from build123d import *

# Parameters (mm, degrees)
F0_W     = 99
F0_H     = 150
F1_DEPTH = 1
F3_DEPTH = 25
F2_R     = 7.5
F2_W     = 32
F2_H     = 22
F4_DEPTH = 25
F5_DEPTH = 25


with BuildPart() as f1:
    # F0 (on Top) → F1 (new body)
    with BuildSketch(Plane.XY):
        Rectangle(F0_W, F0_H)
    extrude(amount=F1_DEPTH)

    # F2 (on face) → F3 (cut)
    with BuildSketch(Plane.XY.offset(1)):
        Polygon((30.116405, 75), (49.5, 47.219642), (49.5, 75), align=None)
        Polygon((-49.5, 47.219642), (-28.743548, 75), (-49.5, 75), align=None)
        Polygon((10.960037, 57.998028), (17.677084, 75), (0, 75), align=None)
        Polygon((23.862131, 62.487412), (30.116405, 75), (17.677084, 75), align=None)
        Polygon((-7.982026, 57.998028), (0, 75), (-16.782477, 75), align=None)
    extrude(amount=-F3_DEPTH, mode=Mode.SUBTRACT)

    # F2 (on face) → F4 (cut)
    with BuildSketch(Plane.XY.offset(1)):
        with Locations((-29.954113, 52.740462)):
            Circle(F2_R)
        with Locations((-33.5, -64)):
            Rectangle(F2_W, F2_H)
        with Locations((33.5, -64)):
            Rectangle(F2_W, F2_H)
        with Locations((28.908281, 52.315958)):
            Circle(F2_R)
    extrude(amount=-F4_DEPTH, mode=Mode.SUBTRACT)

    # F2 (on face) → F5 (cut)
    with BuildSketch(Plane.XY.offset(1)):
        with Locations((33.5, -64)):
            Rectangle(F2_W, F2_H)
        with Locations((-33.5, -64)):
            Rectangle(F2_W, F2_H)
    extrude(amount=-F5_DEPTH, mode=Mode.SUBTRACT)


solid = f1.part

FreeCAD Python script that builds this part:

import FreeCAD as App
import Part
import Sketcher
from FreeCAD import Vector

doc = App.newDocument("Part")
body = doc.addObject("PartDesign::Body", "Body")

# Sketch on XY plane
sketch1 = body.newObject("Sketcher::SketchObject", "Sketch")
sketch1.AttachmentSupport = (doc.getObject("XY_Plane"), [""])
sketch1.MapMode = "FlatFace"
sketch1.addGeometry(Part.LineSegment(Vector(-50, 75, 0), Vector(-50, -75, 0)), False)
sketch1.addGeometry(Part.LineSegment(Vector(-50, -75, 0), Vector(50, -75, 0)), False)
sketch1.addGeometry(Part.LineSegment(Vector(50, -75, 0), Vector(50, 75, 0)), False)
sketch1.addGeometry(Part.LineSegment(Vector(50, 75, 0), Vector(-50, 75, 0)), False)
sketch1.addConstraint(Sketcher.Constraint("Coincident", 0, 2, 1, 1))
sketch1.addConstraint(Sketcher.Constraint("Coincident", 1, 2, 2, 1))
sketch1.addConstraint(Sketcher.Constraint("Coincident", 2, 2, 3, 1))
sketch1.addConstraint(Sketcher.Constraint("Coincident", 3, 2, 0, 1))
sketch1.addConstraint(Sketcher.Constraint("Vertical", 0))
sketch1.addConstraint(Sketcher.Constraint("Horizontal", 1))
sketch1.addConstraint(Sketcher.Constraint("Vertical", 2))
sketch1.addConstraint(Sketcher.Constraint("Horizontal", 3))
sketch1.addConstraint(Sketcher.Constraint("Symmetric", 0, 2, 2, 2, -1, 1))
sketch1.addConstraint(Sketcher.Constraint("DistanceX", 1, 1, 1, 2, 99.0))
sketch1.addConstraint(Sketcher.Constraint("DistanceY", 0, 2, 0, 1, 150.0))
pad1 = body.newObject("PartDesign::Pad", "Pad")
pad1.Profile = sketch1
pad1.Length = 1

# Sketch on XY plane
sketch2 = body.newObject("Sketcher::SketchObject", "Sketch001")
sketch2.AttachmentSupport = (doc.getObject("XY_Plane"), [""])
sketch2.MapMode = "FlatFace"
sketch2.AttachmentOffset = App.Placement(Vector(0, 0, 1), App.Rotation())
sketch2.addGeometry(Part.LineSegment(Vector(30, 75, 0), Vector(50, 47, 0)), False)
sketch2.addGeometry(Part.LineSegment(Vector(50, 47, 0), Vector(50, 75, 0)), False)
sketch2.addGeometry(Part.LineSegment(Vector(50, 75, 0), Vector(30, 75, 0)), False)
sketch2.addGeometry(Part.LineSegment(Vector(-50, 47, 0), Vector(-29, 75, 0)), False)
sketch2.addGeometry(Part.LineSegment(Vector(-29, 75, 0), Vector(-50, 75, 0)), False)
sketch2.addGeometry(Part.LineSegment(Vector(-50, 75, 0), Vector(-50, 47, 0)), False)
sketch2.addGeometry(Part.LineSegment(Vector(11, 58, 0), Vector(18, 75, 0)), False)
sketch2.addGeometry(Part.LineSegment(Vector(18, 75, 0), Vector(0, 75, 0)), False)
sketch2.addGeometry(Part.LineSegment(Vector(0, 75, 0), Vector(11, 58, 0)), False)
sketch2.addGeometry(Part.LineSegment(Vector(24, 62, 0), Vector(30, 75, 0)), False)
sketch2.addGeometry(Part.LineSegment(Vector(30, 75, 0), Vector(18, 75, 0)), False)
sketch2.addGeometry(Part.LineSegment(Vector(18, 75, 0), Vector(24, 62, 0)), False)
sketch2.addGeometry(Part.LineSegment(Vector(-8, 58, 0), Vector(0, 75, 0)), False)
sketch2.addGeometry(Part.LineSegment(Vector(0, 75, 0), Vector(-17, 75, 0)), False)
sketch2.addGeometry(Part.LineSegment(Vector(-17, 75, 0), Vector(-8, 58, 0)), False)
sketch2.addConstraint(Sketcher.Constraint("Coincident", 0, 2, 1, 1))
sketch2.addConstraint(Sketcher.Constraint("Coincident", 1, 2, 2, 1))
sketch2.addConstraint(Sketcher.Constraint("Coincident", 2, 2, 0, 1))
sketch2.addConstraint(Sketcher.Constraint("Coincident", 3, 2, 4, 1))
sketch2.addConstraint(Sketcher.Constraint("Coincident", 4, 2, 5, 1))
sketch2.addConstraint(Sketcher.Constraint("Coincident", 5, 2, 3, 1))
sketch2.addConstraint(Sketcher.Constraint("Coincident", 6, 2, 7, 1))
sketch2.addConstraint(Sketcher.Constraint("Coincident", 7, 2, 8, 1))
sketch2.addConstraint(Sketcher.Constraint("Coincident", 8, 2, 6, 1))
sketch2.addConstraint(Sketcher.Constraint("Coincident", 9, 2, 10, 1))
sketch2.addConstraint(Sketcher.Constraint("Coincident", 10, 2, 11, 1))
sketch2.addConstraint(Sketcher.Constraint("Coincident", 11, 2, 9, 1))
sketch2.addConstraint(Sketcher.Constraint("Coincident", 12, 2, 13, 1))
sketch2.addConstraint(Sketcher.Constraint("Coincident", 13, 2, 14, 1))
sketch2.addConstraint(Sketcher.Constraint("Coincident", 14, 2, 12, 1))
sketch2.addConstraint(Sketcher.Constraint("Vertical", 1))
sketch2.addConstraint(Sketcher.Constraint("Horizontal", 2))
sketch2.addConstraint(Sketcher.Constraint("Horizontal", 4))
sketch2.addConstraint(Sketcher.Constraint("Vertical", 5))
sketch2.addConstraint(Sketcher.Constraint("Horizontal", 7))
sketch2.addConstraint(Sketcher.Constraint("Horizontal", 10))
sketch2.addConstraint(Sketcher.Constraint("Horizontal", 13))
sketch2.addConstraint(Sketcher.Constraint("Coincident", 9, 2, 2, 2))
sketch2.addConstraint(Sketcher.Constraint("Coincident", 10, 2, 6, 2))
sketch2.addConstraint(Sketcher.Constraint("Coincident", 12, 2, 7, 2))
sketch2.addConstraint(Sketcher.Constraint("Symmetric", 1, 2, 4, 2, -2))
sketch2.addConstraint(Sketcher.Constraint("PointOnObject", 7, 2, -2))
sketch2.addConstraint(Sketcher.Constraint("Horizontal", 0, 2, 5, 2))
sketch2.addConstraint(Sketcher.Constraint("Horizontal", 8, 2, 14, 2))
sketch2.addConstraint(Sketcher.Constraint("DistanceY", -1, 1, 1, 2, 75.0))
sketch2.addConstraint(Sketcher.Constraint("DistanceX", 4, 2, 1, 2, 99.0))
sketch2.addConstraint(Sketcher.Constraint("DistanceX", 4, 2, 4, 1, 20.756452))
sketch2.addConstraint(Sketcher.Constraint("DistanceX", 10, 2, 10, 1, 12.439321))
sketch2.addConstraint(Sketcher.Constraint("Distance", 6, 18.280749))
sketch2.addConstraint(Sketcher.Constraint("Distance", 11, 13.957782))
sketch2.addConstraint(Sketcher.Constraint("Distance", 14, 19.144581))
sketch2.addConstraint(Sketcher.Constraint("DistanceX", 2, 2, 2, 1, 19.383595))
sketch2.addConstraint(Sketcher.Constraint("DistanceX", 13, 2, 13, 1, 16.782477))
sketch2.addConstraint(Sketcher.Constraint("DistanceY", 1, 1, 1, 2, 27.780358))
sketch2.addConstraint(Sketcher.Constraint("DistanceX", -1, 1, 11, 2, 23.862131))
sketch2.addConstraint(Sketcher.Constraint("DistanceX", 8, 2, 2, 2, 19.156368))
pocket1 = body.newObject("PartDesign::Pocket", "Pocket")
pocket1.Profile = sketch2
pocket1.Length = 25

# Sketch on XY plane
sketch3 = body.newObject("Sketcher::SketchObject", "Sketch002")
sketch3.AttachmentSupport = (doc.getObject("XY_Plane"), [""])
sketch3.MapMode = "FlatFace"
sketch3.AttachmentOffset = App.Placement(Vector(0, 0, 1), App.Rotation())
sketch3.addGeometry(Part.Circle(Vector(-30, 53, 0), Vector(0, 0, 1), 8), False)
sketch3.addGeometry(Part.LineSegment(Vector(-50, -53, 0), Vector(-50, -75, 0)), False)
sketch3.addGeometry(Part.LineSegment(Vector(-50, -75, 0), Vector(-18, -75, 0)), False)
sketch3.addGeometry(Part.LineSegment(Vector(-18, -75, 0), Vector(-18, -53, 0)), False)
sketch3.addGeometry(Part.LineSegment(Vector(-18, -53, 0), Vector(-50, -53, 0)), False)
sketch3.addGeometry(Part.LineSegment(Vector(18, -53, 0), Vector(18, -75, 0)), False)
sketch3.addGeometry(Part.LineSegment(Vector(18, -75, 0), Vector(50, -75, 0)), False)
sketch3.addGeometry(Part.LineSegment(Vector(50, -75, 0), Vector(50, -53, 0)), False)
sketch3.addGeometry(Part.LineSegment(Vector(50, -53, 0), Vector(18, -53, 0)), False)
sketch3.addGeometry(Part.Circle(Vector(29, 52, 0), Vector(0, 0, 1), 8), False)
sketch3.addConstraint(Sketcher.Constraint("Coincident", 1, 2, 2, 1))
sketch3.addConstraint(Sketcher.Constraint("Coincident", 2, 2, 3, 1))
sketch3.addConstraint(Sketcher.Constraint("Coincident", 3, 2, 4, 1))
sketch3.addConstraint(Sketcher.Constraint("Coincident", 4, 2, 1, 1))
sketch3.addConstraint(Sketcher.Constraint("Coincident", 5, 2, 6, 1))
sketch3.addConstraint(Sketcher.Constraint("Coincident", 6, 2, 7, 1))
sketch3.addConstraint(Sketcher.Constraint("Coincident", 7, 2, 8, 1))
sketch3.addConstraint(Sketcher.Constraint("Coincident", 8, 2, 5, 1))
sketch3.addConstraint(Sketcher.Constraint("Vertical", 1))
sketch3.addConstraint(Sketcher.Constraint("Horizontal", 2))
sketch3.addConstraint(Sketcher.Constraint("Vertical", 3))
sketch3.addConstraint(Sketcher.Constraint("Horizontal", 4))
sketch3.addConstraint(Sketcher.Constraint("Vertical", 5))
sketch3.addConstraint(Sketcher.Constraint("Horizontal", 6))
sketch3.addConstraint(Sketcher.Constraint("Vertical", 7))
sketch3.addConstraint(Sketcher.Constraint("Horizontal", 8))
sketch3.addConstraint(Sketcher.Constraint("Equal", 0, 9))
sketch3.addConstraint(Sketcher.Constraint("Symmetric", 2, 2, 5, 2, -2))
sketch3.addConstraint(Sketcher.Constraint("Symmetric", 4, 2, 7, 2, -2))
sketch3.addConstraint(Sketcher.Constraint("Diameter", 0, 15.0))
sketch3.addConstraint(Sketcher.Constraint("DistanceX", 2, 1, 2, 2, 32.0))
sketch3.addConstraint(Sketcher.Constraint("DistanceY", 1, 2, 1, 1, 22.0))
sketch3.addConstraint(Sketcher.Constraint("DistanceY", 1, 2, -1, 1, 75.0))
sketch3.addConstraint(Sketcher.Constraint("DistanceX", 2, 2, 5, 2, 35.0))
sketch3.addConstraint(Sketcher.Constraint("DistanceX", -1, 1, 9, 3, 28.908281))
sketch3.addConstraint(Sketcher.Constraint("DistanceY", -1, 1, 9, 3, 52.315958))
sketch3.addConstraint(Sketcher.Constraint("DistanceX", 0, 3, -1, 1, 29.954113))
sketch3.addConstraint(Sketcher.Constraint("DistanceY", -1, 1, 0, 3, 52.740462))
pocket2 = body.newObject("PartDesign::Pocket", "Pocket001")
pocket2.Profile = sketch3
pocket2.Length = 25

# Sketch on XY plane
sketch4 = body.newObject("Sketcher::SketchObject", "Sketch003")
sketch4.AttachmentSupport = (doc.getObject("XY_Plane"), [""])
sketch4.MapMode = "FlatFace"
sketch4.AttachmentOffset = App.Placement(Vector(0, 0, 1), App.Rotation())
sketch4.addGeometry(Part.LineSegment(Vector(18, -53, 0), Vector(18, -75, 0)), False)
sketch4.addGeometry(Part.LineSegment(Vector(18, -75, 0), Vector(50, -75, 0)), False)
sketch4.addGeometry(Part.LineSegment(Vector(50, -75, 0), Vector(50, -53, 0)), False)
sketch4.addGeometry(Part.LineSegment(Vector(50, -53, 0), Vector(18, -53, 0)), False)
sketch4.addGeometry(Part.LineSegment(Vector(-50, -53, 0), Vector(-50, -75, 0)), False)
sketch4.addGeometry(Part.LineSegment(Vector(-50, -75, 0), Vector(-18, -75, 0)), False)
sketch4.addGeometry(Part.LineSegment(Vector(-18, -75, 0), Vector(-18, -53, 0)), False)
sketch4.addGeometry(Part.LineSegment(Vector(-18, -53, 0), Vector(-50, -53, 0)), False)
sketch4.addConstraint(Sketcher.Constraint("Coincident", 0, 2, 1, 1))
sketch4.addConstraint(Sketcher.Constraint("Coincident", 1, 2, 2, 1))
sketch4.addConstraint(Sketcher.Constraint("Coincident", 2, 2, 3, 1))
sketch4.addConstraint(Sketcher.Constraint("Coincident", 3, 2, 0, 1))
sketch4.addConstraint(Sketcher.Constraint("Coincident", 4, 2, 5, 1))
sketch4.addConstraint(Sketcher.Constraint("Coincident", 5, 2, 6, 1))
sketch4.addConstraint(Sketcher.Constraint("Coincident", 6, 2, 7, 1))
sketch4.addConstraint(Sketcher.Constraint("Coincident", 7, 2, 4, 1))
sketch4.addConstraint(Sketcher.Constraint("Vertical", 0))
sketch4.addConstraint(Sketcher.Constraint("Horizontal", 1))
sketch4.addConstraint(Sketcher.Constraint("Vertical", 2))
sketch4.addConstraint(Sketcher.Constraint("Horizontal", 3))
sketch4.addConstraint(Sketcher.Constraint("Vertical", 4))
sketch4.addConstraint(Sketcher.Constraint("Horizontal", 5))
sketch4.addConstraint(Sketcher.Constraint("Vertical", 6))
sketch4.addConstraint(Sketcher.Constraint("Horizontal", 7))
sketch4.addConstraint(Sketcher.Constraint("Symmetric", 1, 2, 4, 2, -2))
sketch4.addConstraint(Sketcher.Constraint("Symmetric", 3, 2, 6, 2, -2))
sketch4.addConstraint(Sketcher.Constraint("DistanceX", 1, 1, 1, 2, 32.0))
sketch4.addConstraint(Sketcher.Constraint("DistanceY", 0, 2, 0, 1, 22.0))
sketch4.addConstraint(Sketcher.Constraint("DistanceY", 0, 2, -1, 1, 75.0))
sketch4.addConstraint(Sketcher.Constraint("DistanceX", 4, 2, 0, 2, 67.0))
pocket3 = body.newObject("PartDesign::Pocket", "Pocket002")
pocket3.Profile = sketch4
pocket3.Length = 25

doc.recompute()
